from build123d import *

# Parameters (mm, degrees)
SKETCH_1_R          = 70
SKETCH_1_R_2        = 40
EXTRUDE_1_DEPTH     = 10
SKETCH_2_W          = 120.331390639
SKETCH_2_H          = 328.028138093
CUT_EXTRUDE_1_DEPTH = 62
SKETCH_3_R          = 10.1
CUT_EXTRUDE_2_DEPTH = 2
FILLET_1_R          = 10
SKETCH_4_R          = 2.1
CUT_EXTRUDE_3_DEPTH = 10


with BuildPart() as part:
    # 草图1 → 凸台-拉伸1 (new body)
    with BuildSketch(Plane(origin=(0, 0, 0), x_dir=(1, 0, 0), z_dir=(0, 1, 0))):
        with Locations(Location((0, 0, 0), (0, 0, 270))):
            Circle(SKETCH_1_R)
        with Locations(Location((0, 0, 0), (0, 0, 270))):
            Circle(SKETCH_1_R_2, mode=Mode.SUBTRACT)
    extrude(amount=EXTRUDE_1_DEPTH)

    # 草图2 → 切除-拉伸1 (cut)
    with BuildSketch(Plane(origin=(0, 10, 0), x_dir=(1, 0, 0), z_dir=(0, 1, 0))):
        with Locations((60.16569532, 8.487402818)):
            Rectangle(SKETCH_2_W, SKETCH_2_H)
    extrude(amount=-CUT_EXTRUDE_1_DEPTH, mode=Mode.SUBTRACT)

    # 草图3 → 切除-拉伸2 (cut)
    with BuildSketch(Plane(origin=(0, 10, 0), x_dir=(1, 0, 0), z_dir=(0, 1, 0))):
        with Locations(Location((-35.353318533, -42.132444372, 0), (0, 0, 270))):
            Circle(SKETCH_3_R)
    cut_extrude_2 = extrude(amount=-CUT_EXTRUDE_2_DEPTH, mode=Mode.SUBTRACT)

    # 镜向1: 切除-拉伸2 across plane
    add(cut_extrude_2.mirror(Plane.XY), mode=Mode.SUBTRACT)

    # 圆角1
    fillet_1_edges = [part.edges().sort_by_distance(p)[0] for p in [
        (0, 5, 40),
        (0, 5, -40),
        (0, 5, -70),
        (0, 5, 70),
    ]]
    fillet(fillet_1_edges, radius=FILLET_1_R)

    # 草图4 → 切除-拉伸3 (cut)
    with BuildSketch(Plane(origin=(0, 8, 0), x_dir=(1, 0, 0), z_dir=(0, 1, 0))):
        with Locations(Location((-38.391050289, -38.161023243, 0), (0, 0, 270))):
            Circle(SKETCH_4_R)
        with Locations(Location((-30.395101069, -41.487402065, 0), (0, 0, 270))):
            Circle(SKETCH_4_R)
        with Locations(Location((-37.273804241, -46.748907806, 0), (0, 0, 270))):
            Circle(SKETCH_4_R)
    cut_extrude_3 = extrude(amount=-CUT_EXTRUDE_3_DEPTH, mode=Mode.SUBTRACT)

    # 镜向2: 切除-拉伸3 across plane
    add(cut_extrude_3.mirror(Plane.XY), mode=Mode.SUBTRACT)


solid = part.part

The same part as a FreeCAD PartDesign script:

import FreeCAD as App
import Part
import Sketcher
Q = App.Units.Quantity


def edges_at(feature, points):
    """Names of the edges that pass closest to the given points."""
    edges = feature.Shape.Edges
    near = lambda p: min(range(len(edges)), key=lambda i: edges[i].distToShape(Part.Vertex(*p))[0])
    return sorted({f"Edge{near(p) + 1}" for p in points})

doc = App.newDocument("Part")
body = doc.addObject("PartDesign::Body", "Body")

# Sketch on XZ plane
sketch1 = body.newObject("Sketcher::SketchObject", "Sketch")
sketch1.AttachmentSupport = (doc.getObject("XZ_Plane"), [""])
sketch1.MapMode = "FlatFace"
sketch1.addGeometry(Part.Circle(App.Vector(0, 0, 0), App.Vector(0, 0, 1), 70), False)
sketch1.addGeometry(Part.Circle(App.Vector(0, 0, 0), App.Vector(0, 0, 1), 40), False)
sketch1.addConstraint(Sketcher.Constraint("Coincident", 0, 3, -1, 1))
sketch1.addConstraint(Sketcher.Constraint("Coincident", 1, 3, -1, 1))
sketch1.addConstraint(Sketcher.Constraint("Diameter", 0, Q("140 mm")))
sketch1.addConstraint(Sketcher.Constraint("Diameter", 1, Q("80 mm")))
pad1 = body.newObject("PartDesign::Pad", "Pad")
pad1.Profile = sketch1
pad1.Length = 10
pad1.Reversed = True

# Sketch on XZ plane
sketch2 = body.newObject("Sketcher::SketchObject", "Sketch001")
sketch2.AttachmentSupport = (doc.getObject("XZ_Plane"), [""])
sketch2.MapMode = "FlatFace"
sketch2.AttachmentOffset = App.Placement(App.Vector(0, 0, -10), App.Rotation())
sketch2.addGeometry(Part.LineSegment(App.Vector(0, -173, 0), App.Vector(0, 156, 0)), False)
sketch2.addGeometry(Part.LineSegment(App.Vector(0, 156, 0), App.Vector(120, 156, 0)), False)
sketch2.addGeometry(Part.LineSegment(App.Vector(120, 156, 0), App.Vector(120, -173, 0)), False)
sketch2.addGeometry(Part.LineSegment(App.Vector(120, -173, 0), App.Vector(0, -173, 0)), False)
sketch2.addConstraint(Sketcher.Constraint("Coincident", 0, 2, 1, 1))
sketch2.addConstraint(Sketcher.Constraint("Coincident", 1, 2, 2, 1))
sketch2.addConstraint(Sketcher.Constraint("Coincident", 2, 2, 3, 1))
sketch2.addConstraint(Sketcher.Constraint("Coincident", 3, 2, 0, 1))
sketch2.addConstraint(Sketcher.Constraint("Vertical", 0))
sketch2.addConstraint(Sketcher.Constraint("Horizontal", 1))
sketch2.addConstraint(Sketcher.Constraint("Vertical", 2))
sketch2.addConstraint(Sketcher.Constraint("Horizontal", 3))
sketch2.addConstraint(Sketcher.Constraint("PointOnObject", 0, 2, -2))
sketch2.addConstraint(Sketcher.Constraint("DistanceX", 1, 1, 1, 2, Q("120.331391 mm")))
sketch2.addConstraint(Sketcher.Constraint("DistanceY", 0, 1, 0, 2, Q("328.028138 mm")))
sketch2.addConstraint(Sketcher.Constraint("DistanceY", 2, 2, -1, 1, Q("172.501472 mm")))
pocket1 = body.newObject("PartDesign::Pocket", "Pocket")
pocket1.Profile = sketch2
pocket1.Length = 62
pocket1.Reversed = True

# Sketch on XZ plane
sketch3 = body.newObject("Sketcher::SketchObject", "Sketch002")
sketch3.AttachmentSupport = (doc.getObject("XZ_Plane"), [""])
sketch3.MapMode = "FlatFace"
sketch3.AttachmentOffset = App.Placement(App.Vector(0, 0, -10), App.Rotation())
sketch3.addGeometry(Part.Circle(App.Vector(-35, 42, 0), App.Vector(0, 0, 1), 10), False)
sketch3.addConstraint(Sketcher.Constraint("Diameter", 0, Q("20.2 mm")))
sketch3.addConstraint(Sketcher.Constraint("DistanceX", 0, 3, -1, 1, Q("35.353319 mm")))
sketch3.addConstraint(Sketcher.Constraint("DistanceY", -1, 1, 0, 3, Q("42.132444 mm")))
pocket2 = body.newObject("PartDesign::Pocket", "Pocket001")
pocket2.Profile = sketch3
pocket2.Length = 2
pocket2.Reversed = True
doc.recompute()

mirrored = body.newObject("PartDesign::Mirrored", "Mirrored")
mirrored.Originals = [pocket2]
mirrored.MirrorPlane = (doc.getObject("XY_Plane"), [""])
body.Tip = mirrored
doc.recompute()

fillet = body.newObject("PartDesign::Fillet", "Fillet")
fillet.Base = (mirrored, edges_at(mirrored, [
    (0, 5, 40),
    (0, 5, -40),
    (0, 5, -70),
    (0, 5, 70),
]))
fillet.Radius = 10

# Sketch on XZ plane
sketch4 = body.newObject("Sketcher::SketchObject", "Sketch003")
sketch4.AttachmentSupport = (doc.getObject("XZ_Plane"), [""])
sketch4.MapMode = "FlatFace"
sketch4.AttachmentOffset = App.Placement(App.Vector(0, 0, -8), App.Rotation())
sketch4.addGeometry(Part.Circle(App.Vector(-38.4, 38.2, 0), App.Vector(0, 0, 1), 2.1), False)
sketch4.addGeometry(Part.Circle(App.Vector(-30.4, 41.5, 0), App.Vector(0, 0, 1), 2.1), False)
sketch4.addGeometry(Part.Circle(App.Vector(-37.3, 46.7, 0), App.Vector(0, 0, 1), 2.1), False)
sketch4.addConstraint(Sketcher.Constraint("Equal", 0, 1))
sketch4.addConstraint(Sketcher.Constraint("Equal", 1, 2))
sketch4.addConstraint(Sketcher.Constraint("Diameter", 0, Q("4.2 mm")))
sketch4.addConstraint(Sketcher.Constraint("DistanceX", 1, 3, -1, 1, Q("30.395101 mm")))
sketch4.addConstraint(Sketcher.Constraint("DistanceX", 0, 3, -1, 1, Q("38.39105 mm")))
sketch4.addConstraint(Sketcher.Constraint("DistanceY", 0, 3, 1, 3, Q("3.326379 mm")))
sketch4.addConstraint(Sketcher.Constraint("DistanceY", -1, 1, 0, 3, Q("38.161023 mm")))
sketch4.addConstraint(Sketcher.Constraint("DistanceX", 2, 3, -1, 1, Q("37.273804 mm")))
sketch4.addConstraint(Sketcher.Constraint("DistanceY", -1, 1, 2, 3, Q("46.748908 mm")))
pocket3 = body.newObject("PartDesign::Pocket", "Pocket002")
pocket3.Profile = sketch4
pocket3.Length = 10
pocket3.Reversed = True
doc.recompute()

mirrored2 = body.newObject("PartDesign::Mirrored", "Mirrored001")
mirrored2.Originals = [pocket3]
mirrored2.MirrorPlane = (doc.getObject("XY_Plane"), [""])
body.Tip = mirrored2

doc.recompute()
